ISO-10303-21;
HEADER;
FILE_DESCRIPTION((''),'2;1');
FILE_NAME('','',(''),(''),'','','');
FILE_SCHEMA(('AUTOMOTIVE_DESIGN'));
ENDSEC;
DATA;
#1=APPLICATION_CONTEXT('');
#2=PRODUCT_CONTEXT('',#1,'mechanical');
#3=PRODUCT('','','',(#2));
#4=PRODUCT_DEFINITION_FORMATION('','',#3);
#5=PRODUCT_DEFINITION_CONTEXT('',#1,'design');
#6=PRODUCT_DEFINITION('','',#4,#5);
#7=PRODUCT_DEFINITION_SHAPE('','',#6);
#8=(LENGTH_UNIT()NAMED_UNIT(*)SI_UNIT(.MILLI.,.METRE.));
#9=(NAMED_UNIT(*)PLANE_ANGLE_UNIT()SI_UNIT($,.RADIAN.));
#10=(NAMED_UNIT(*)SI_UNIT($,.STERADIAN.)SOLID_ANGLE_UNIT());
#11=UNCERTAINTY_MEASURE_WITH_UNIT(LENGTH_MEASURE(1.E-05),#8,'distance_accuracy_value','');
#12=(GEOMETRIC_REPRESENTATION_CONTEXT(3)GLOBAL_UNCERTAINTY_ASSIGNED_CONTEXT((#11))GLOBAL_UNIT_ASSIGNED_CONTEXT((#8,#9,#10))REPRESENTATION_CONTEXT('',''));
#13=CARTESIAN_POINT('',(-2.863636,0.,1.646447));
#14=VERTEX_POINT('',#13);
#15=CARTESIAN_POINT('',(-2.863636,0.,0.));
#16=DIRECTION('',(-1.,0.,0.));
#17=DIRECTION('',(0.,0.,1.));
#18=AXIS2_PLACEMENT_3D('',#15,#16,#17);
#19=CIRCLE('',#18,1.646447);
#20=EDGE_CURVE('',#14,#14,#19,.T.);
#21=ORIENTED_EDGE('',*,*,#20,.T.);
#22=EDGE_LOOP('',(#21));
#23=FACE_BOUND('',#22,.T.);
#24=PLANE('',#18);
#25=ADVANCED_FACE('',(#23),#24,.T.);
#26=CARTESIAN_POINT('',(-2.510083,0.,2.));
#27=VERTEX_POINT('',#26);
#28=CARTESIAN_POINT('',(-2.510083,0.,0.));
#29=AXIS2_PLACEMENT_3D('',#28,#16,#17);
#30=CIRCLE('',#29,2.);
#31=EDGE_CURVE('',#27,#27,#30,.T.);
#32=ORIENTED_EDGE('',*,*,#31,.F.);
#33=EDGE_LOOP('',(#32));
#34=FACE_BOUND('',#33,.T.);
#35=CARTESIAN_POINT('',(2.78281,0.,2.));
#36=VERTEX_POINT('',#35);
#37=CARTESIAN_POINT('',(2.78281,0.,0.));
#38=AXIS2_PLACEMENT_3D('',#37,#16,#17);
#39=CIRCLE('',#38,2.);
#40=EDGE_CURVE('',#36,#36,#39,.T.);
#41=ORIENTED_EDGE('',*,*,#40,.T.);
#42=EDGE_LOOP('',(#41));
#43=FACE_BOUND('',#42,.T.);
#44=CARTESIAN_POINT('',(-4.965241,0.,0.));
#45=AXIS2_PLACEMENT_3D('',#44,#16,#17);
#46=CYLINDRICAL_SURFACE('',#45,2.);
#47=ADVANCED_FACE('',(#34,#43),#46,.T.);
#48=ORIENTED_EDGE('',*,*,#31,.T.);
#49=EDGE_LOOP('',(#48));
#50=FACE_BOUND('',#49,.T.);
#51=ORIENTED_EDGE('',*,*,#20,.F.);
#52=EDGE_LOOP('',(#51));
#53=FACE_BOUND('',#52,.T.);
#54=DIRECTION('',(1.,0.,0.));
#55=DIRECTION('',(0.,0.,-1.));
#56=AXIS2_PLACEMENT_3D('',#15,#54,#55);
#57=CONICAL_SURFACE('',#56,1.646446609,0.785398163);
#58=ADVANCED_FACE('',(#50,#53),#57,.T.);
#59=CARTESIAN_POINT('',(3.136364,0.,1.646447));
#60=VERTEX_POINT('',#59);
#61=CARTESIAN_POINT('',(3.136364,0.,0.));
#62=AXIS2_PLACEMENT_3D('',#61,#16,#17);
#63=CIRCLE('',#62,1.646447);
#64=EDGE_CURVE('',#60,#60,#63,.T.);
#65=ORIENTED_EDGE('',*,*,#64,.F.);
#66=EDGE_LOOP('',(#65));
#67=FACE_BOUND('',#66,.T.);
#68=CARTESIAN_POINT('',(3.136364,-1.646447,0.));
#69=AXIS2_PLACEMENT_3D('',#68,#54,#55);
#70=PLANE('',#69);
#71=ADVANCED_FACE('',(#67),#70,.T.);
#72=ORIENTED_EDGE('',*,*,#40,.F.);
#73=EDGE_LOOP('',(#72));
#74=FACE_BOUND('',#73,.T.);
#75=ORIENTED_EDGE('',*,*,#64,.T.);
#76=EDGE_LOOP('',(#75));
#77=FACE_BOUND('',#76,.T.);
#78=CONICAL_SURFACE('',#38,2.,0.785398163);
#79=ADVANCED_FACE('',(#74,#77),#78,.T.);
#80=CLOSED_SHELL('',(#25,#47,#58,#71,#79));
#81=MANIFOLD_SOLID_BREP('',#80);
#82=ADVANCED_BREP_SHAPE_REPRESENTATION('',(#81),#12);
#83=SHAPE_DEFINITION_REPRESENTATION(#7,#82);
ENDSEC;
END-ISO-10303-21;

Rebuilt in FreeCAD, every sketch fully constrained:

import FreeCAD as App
import Part
import Sketcher

V = App.Vector
Q = App.Units.Quantity

doc = App.newDocument("Part")
body = doc.addObject("PartDesign::Body", "Body")

# Sketch on XY plane
sketch1 = doc.addObject("Sketcher::SketchObject", "Sketch")
body.addObject(sketch1)
sketch1.AttachmentSupport = (doc.XY_Plane, [""])
sketch1.MapMode = "FlatFace"
sketch1.addGeometry([
    Part.LineSegment(V(-2.863636, 0, 0), V(-2.863636, -1.646447, 0)),  # 0
    Part.LineSegment(V(-2.863636, -1.646447, 0), V(-2.510083, -2, 0)),  # 1
    Part.LineSegment(V(-2.510083, -2, 0), V(2.78281, -2, 0)),  # 2
    Part.LineSegment(V(2.78281, -2, 0), V(3.136364, -1.646447, 0)),  # 3
    Part.LineSegment(V(3.136364, -1.646447, 0), V(3.136364, 0, 0)),  # 4
    Part.LineSegment(V(3.136364, 0, 0), V(-2.863636, 0, 0)),  # 5
], False)
sketch1.addConstraint([
    Sketcher.Constraint("Coincident", 0, 2, 1, 1),
    Sketcher.Constraint("Coincident", 1, 2, 2, 1),
    Sketcher.Constraint("Coincident", 2, 2, 3, 1),
    Sketcher.Constraint("Coincident", 3, 2, 4, 1),
    Sketcher.Constraint("Coincident", 4, 2, 5, 1),
    Sketcher.Constraint("Coincident", 5, 2, 0, 1),
    Sketcher.Constraint("Vertical", 0),
    Sketcher.Constraint("Horizontal", 2),
    Sketcher.Constraint("Vertical", 4),
    Sketcher.Constraint("Horizontal", 5),
    Sketcher.Constraint("PointOnObject", 4, 2, -1),
    Sketcher.Constraint("Perpendicular", 1, 3),
    Sketcher.Constraint("Horizontal", 0, 2, 3, 2),
    Sketcher.Constraint("Equal", 1, 3),
    Sketcher.Constraint("DistanceX", 5, 2, 5, 1, Q("6 mm")),
    Sketcher.Constraint("DistanceY", 1, 2, -1, 1, Q("2 mm")),
    Sketcher.Constraint("Distance", 1, Q("0.5 mm")),
    Sketcher.Constraint("DistanceX", -1, 1, 2, 2, Q("2.78281 mm")),
])
revolution = doc.addObject("PartDesign::Revolution", "Revolution")
body.addObject(revolution)
revolution.Profile = sketch1
revolution.ReferenceAxis = (sketch1, ["H_Axis"])
revolution.Angle = 360

doc.recompute()
